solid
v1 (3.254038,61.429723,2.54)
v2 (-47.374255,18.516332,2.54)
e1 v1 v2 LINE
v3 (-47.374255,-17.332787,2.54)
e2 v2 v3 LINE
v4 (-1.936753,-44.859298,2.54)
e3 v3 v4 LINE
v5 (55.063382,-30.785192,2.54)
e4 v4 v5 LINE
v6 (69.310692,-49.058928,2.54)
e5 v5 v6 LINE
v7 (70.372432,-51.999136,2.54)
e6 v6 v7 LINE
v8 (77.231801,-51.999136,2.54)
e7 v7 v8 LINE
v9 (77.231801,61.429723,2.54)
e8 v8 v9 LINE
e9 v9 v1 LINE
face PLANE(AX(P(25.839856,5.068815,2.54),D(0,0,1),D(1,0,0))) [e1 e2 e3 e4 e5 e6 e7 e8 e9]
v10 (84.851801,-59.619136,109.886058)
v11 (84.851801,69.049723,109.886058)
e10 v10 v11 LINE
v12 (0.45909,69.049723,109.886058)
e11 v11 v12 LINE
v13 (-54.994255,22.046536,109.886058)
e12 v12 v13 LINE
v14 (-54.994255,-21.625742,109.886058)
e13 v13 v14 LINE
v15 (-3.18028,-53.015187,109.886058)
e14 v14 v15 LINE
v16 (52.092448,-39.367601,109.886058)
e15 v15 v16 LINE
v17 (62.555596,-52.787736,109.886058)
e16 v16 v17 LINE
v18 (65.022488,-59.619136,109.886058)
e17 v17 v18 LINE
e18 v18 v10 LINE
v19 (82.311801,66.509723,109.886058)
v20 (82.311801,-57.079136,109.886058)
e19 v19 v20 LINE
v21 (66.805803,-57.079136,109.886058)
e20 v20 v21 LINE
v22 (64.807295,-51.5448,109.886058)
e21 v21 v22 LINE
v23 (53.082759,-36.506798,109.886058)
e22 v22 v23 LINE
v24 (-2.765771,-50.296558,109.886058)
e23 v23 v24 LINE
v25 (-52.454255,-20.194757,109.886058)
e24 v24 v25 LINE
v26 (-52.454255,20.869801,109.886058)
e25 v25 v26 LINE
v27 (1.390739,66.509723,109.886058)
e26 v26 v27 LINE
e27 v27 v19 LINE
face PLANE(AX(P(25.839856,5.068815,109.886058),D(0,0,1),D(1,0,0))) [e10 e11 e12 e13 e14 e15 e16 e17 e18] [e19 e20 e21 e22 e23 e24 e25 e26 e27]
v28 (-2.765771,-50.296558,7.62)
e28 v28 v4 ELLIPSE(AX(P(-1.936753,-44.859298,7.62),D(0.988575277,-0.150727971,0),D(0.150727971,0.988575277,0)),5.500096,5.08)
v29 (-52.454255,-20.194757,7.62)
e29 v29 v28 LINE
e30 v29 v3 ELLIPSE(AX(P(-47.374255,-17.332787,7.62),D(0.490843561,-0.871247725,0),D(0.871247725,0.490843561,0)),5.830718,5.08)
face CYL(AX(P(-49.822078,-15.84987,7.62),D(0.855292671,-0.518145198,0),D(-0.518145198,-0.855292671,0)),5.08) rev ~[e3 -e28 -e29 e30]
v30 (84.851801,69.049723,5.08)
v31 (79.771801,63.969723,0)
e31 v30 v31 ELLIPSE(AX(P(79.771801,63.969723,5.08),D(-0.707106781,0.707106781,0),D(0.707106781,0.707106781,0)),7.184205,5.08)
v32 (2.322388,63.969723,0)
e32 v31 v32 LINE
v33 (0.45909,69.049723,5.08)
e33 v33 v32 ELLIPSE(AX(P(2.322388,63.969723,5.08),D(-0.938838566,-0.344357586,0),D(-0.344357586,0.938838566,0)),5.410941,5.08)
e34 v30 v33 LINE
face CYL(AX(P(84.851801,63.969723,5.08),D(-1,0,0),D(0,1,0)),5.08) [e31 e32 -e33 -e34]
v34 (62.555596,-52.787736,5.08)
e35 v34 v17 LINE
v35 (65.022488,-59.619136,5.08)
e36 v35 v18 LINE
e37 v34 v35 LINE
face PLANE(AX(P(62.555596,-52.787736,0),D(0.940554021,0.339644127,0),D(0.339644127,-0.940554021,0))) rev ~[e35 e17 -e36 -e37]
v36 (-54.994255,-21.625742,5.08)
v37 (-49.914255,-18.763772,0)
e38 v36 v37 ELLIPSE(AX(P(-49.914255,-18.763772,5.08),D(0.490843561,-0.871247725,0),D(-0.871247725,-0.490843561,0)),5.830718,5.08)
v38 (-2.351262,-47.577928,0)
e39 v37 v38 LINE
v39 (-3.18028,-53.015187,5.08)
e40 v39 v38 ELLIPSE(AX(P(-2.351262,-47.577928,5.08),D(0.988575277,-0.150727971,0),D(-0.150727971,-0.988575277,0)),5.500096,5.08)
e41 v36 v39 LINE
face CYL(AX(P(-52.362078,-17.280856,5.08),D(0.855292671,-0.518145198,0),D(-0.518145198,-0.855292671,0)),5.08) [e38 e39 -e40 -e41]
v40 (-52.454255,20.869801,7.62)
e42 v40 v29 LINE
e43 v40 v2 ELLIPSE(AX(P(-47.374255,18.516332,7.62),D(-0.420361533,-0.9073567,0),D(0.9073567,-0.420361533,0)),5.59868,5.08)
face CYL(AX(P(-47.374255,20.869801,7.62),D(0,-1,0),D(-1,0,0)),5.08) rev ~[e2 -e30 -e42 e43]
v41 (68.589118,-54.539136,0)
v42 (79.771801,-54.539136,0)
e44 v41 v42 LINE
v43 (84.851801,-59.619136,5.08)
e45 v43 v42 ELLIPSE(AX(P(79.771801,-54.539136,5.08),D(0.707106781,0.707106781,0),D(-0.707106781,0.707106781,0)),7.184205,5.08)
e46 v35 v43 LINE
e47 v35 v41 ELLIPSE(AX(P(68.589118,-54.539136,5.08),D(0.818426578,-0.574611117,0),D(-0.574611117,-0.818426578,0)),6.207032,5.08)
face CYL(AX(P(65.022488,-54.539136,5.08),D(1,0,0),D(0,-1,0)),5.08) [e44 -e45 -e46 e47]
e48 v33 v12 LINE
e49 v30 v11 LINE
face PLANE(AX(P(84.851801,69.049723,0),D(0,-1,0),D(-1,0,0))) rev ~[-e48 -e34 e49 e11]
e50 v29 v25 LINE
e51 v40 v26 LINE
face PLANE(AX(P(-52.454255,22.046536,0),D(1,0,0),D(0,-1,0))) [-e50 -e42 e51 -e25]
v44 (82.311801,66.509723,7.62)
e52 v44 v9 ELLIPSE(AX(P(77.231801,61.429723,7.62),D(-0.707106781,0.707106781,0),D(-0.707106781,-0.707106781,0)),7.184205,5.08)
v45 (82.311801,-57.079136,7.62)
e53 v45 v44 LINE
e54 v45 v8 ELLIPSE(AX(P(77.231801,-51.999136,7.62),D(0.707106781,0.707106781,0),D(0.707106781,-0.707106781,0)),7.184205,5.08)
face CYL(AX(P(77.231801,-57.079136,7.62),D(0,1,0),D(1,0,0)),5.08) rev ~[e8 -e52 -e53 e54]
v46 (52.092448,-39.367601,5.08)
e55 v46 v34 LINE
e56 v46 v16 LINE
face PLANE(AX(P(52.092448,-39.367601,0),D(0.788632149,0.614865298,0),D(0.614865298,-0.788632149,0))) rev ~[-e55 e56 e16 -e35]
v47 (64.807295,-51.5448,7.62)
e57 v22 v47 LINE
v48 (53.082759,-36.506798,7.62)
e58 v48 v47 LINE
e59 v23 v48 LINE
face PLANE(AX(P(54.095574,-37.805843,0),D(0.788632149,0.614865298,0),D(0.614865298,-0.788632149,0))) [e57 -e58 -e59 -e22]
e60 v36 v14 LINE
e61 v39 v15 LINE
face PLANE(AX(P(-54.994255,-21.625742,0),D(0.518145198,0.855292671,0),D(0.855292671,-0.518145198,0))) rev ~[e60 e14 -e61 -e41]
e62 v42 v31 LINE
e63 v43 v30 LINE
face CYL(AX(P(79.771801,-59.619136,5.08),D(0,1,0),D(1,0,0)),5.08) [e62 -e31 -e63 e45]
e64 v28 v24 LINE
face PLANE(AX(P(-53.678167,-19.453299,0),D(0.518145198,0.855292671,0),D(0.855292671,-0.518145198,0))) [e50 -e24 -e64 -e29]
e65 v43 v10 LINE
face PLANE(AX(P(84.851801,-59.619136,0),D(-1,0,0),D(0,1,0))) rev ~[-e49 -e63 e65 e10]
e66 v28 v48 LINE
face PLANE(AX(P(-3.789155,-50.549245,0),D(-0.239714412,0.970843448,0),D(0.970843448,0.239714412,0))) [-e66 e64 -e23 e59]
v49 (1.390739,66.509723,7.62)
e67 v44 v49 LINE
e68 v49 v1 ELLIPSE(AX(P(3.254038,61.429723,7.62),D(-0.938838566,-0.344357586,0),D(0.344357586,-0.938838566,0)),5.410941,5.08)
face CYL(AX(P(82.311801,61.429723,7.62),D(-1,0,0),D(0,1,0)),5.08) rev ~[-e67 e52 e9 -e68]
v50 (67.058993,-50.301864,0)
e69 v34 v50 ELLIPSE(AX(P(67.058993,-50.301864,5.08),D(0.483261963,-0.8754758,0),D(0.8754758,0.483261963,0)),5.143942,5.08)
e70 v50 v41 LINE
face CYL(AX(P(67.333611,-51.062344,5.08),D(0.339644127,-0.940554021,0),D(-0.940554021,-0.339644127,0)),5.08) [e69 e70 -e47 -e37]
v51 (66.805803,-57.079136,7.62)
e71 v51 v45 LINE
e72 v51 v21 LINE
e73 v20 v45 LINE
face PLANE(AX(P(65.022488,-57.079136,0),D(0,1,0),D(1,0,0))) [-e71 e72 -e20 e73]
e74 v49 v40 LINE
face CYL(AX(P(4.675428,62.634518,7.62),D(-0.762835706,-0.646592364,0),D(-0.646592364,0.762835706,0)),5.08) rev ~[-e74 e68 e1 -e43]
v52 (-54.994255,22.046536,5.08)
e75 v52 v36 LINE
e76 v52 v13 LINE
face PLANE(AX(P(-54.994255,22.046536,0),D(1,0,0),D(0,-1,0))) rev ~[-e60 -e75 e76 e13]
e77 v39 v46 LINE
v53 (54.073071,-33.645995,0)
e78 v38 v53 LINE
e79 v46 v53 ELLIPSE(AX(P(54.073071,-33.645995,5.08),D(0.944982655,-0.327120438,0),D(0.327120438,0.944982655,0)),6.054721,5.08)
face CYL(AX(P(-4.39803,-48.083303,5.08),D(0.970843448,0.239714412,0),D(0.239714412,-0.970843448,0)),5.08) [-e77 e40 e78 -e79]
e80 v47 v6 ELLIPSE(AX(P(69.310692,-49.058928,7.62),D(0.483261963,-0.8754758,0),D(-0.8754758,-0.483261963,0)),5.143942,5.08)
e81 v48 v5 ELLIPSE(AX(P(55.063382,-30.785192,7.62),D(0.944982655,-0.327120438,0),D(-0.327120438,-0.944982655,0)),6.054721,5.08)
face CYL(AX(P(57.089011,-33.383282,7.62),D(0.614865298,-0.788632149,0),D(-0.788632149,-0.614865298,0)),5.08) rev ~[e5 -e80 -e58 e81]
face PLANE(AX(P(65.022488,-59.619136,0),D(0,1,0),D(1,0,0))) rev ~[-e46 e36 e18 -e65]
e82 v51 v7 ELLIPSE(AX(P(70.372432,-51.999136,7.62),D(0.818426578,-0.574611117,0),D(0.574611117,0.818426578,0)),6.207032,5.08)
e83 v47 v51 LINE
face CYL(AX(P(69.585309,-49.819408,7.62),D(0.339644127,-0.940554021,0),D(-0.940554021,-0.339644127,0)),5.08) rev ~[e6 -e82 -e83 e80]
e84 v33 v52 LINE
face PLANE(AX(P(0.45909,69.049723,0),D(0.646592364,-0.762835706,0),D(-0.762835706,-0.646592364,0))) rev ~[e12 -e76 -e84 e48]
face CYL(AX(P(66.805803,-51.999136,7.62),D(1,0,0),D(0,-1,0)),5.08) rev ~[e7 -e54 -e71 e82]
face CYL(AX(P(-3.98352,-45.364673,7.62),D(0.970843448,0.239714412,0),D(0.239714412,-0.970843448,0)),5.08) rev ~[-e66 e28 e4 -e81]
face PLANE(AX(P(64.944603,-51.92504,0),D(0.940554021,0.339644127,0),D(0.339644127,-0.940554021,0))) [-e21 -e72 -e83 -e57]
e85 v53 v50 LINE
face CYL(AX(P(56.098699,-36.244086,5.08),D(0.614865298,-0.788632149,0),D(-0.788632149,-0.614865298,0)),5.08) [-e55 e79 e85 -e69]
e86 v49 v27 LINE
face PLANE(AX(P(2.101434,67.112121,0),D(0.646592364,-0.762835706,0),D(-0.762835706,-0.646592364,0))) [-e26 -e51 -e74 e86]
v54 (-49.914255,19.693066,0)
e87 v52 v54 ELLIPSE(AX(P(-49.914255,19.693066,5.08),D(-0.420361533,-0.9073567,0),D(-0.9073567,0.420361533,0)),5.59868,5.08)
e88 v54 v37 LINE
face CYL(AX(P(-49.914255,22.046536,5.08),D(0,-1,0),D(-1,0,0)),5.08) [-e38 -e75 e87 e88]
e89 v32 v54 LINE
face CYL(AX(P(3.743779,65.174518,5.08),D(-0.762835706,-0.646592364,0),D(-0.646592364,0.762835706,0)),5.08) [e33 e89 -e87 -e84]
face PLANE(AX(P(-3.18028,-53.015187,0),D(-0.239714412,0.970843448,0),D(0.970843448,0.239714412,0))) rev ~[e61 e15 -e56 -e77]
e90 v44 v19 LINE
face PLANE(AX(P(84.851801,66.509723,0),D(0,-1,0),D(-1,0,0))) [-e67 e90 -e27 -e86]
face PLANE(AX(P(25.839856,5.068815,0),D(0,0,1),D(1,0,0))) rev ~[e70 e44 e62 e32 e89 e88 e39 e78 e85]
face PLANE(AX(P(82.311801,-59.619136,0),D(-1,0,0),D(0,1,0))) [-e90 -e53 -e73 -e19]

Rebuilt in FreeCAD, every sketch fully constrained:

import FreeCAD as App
import Part
import Sketcher
from FreeCAD import Vector
Q = App.Units.Quantity


def edges_at(feature, points):
    """Names of the edges that pass closest to the given points."""
    edges = feature.Shape.Edges
    near = lambda p: min(range(len(edges)), key=lambda i: edges[i].distToShape(Part.Vertex(*p))[0])
    return sorted({f"Edge{near(p) + 1}" for p in points})


def faces_at(feature, points):
    """Names of the faces that lie closest to the given points."""
    faces = feature.Shape.Faces
    near = lambda p: min(range(len(faces)), key=lambda i: faces[i].distToShape(Part.Vertex(*p))[0])
    return sorted({f"Face{near(p) + 1}" for p in points})


def add_polygon(sketch, points):
    """Adds a closed chain of lines whose ends are joined by coincident constraints."""
    first, n = sketch.GeometryCount, len(points)
    for a, b in zip(points, points[1:] + points[:1]):
        sketch.addGeometry(Part.LineSegment(App.Vector(*a, 0), App.Vector(*b, 0)), False)
    for i in range(n):
        sketch.addConstraint(Sketcher.Constraint("Coincident", first + i, 2, first + (i + 1) % n, 1))

doc = App.newDocument("Part")
body = doc.addObject("PartDesign::Body", "Body")

sketch1 = body.newObject("Sketcher::SketchObject", "Sketch")
sketch1.AttachmentSupport = (doc.getObject("XY_Plane"), [""])
sketch1.MapMode = "FlatFace"
add_polygon(sketch1, [(85, -60), (85, 69), (0, 69), (-55, 22), (-55, -22), (-3, -53), (52, -39), (63, -53), (65, -60)])
sketch1.addConstraint([
    Sketcher.Constraint("Vertical", 0),
    Sketcher.Constraint("Horizontal", 1),
    Sketcher.Constraint("Vertical", 3),
    Sketcher.Constraint("Horizontal", 8),
    Sketcher.Constraint("DistanceX", 1, 2, 1, 1, 84.392712),
    Sketcher.Constraint("DistanceY", 0, 1, 0, 2, 128.66886),
    Sketcher.Constraint("DistanceY", 3, 2, 3, 1, 43.672279),
    Sketcher.Constraint("DistanceX", -1, 1, 0, 2, 84.851801),
    Sketcher.Constraint("DistanceY", 5, 2, -1, 1, 39.367601),
    Sketcher.Constraint("DistanceY", 7, 2, 6, 2, 6.8314),
    Sketcher.Constraint("Distance", 5, 56.932689),
    Sketcher.Constraint("DistanceX", 8, 1, 8, 2, 19.829313),
    Sketcher.Constraint("DistanceX", 4, 2, -1, 1, 3.18028),
    Sketcher.Constraint("DistanceY", 4, 2, 1, 2, 122.064911),
    Sketcher.Constraint("DistanceX", 4, 2, 5, 2, 55.272728),
    Sketcher.Constraint("DistanceY", 5, 2, 3, 2, 17.741859),
    Sketcher.Constraint("DistanceX", 5, 2, 6, 2, 10.463148),
    Sketcher.Constraint("DistanceX", 3, 2, 6, 2, 117.549852),
])
pad1 = body.newObject("PartDesign::Pad", "Pad")
pad1.Profile = sketch1
pad1.Length = 109.886058
doc.recompute()

thickness = body.newObject("PartDesign::Thickness", "Thickness")
thickness.Base = (pad1, faces_at(pad1, [(14.929, 4.715, 109.886)]))
thickness.Value = Q("0.1 in")
thickness.Reversed = True
thickness.Join = "Intersection"
doc.recompute()

fillet = body.newObject("PartDesign::Fillet", "Fillet")
fillet.Base = (thickness, edges_at(thickness, [
    (74.559, -57.079, 2.54),
    (65.807, -54.312, 2.54),
    (58.945, -44.026, 2.54),
    (25.158, -43.402, 2.54),
    (-27.61, -35.246, 2.54),
    (-52.454, 0.338, 2.54),
    (-25.532, 43.69, 2.54),
    (41.851, 66.51, 2.54),
    (82.312, 4.715, 2.54),
]))
fillet.Radius = Q("0.2 in")
doc.recompute()

fillet2 = body.newObject("PartDesign::Fillet", "Fillet001")
fillet2.Base = (fillet, edges_at(fillet, [
    (84.852, 4.715, 0),
    (42.655, 69.05, 0),
    (-27.268, 45.548, 0),
    (-54.994, 0.21, 0),
    (-29.087, -37.32, 0),
    (24.456, -46.191, 0),
    (57.324, -46.078, 0),
    (63.789, -56.203, 0),
    (74.937, -59.619, 0),
]))
fillet2.Radius = Q("0.2 in")

doc.recompute()
